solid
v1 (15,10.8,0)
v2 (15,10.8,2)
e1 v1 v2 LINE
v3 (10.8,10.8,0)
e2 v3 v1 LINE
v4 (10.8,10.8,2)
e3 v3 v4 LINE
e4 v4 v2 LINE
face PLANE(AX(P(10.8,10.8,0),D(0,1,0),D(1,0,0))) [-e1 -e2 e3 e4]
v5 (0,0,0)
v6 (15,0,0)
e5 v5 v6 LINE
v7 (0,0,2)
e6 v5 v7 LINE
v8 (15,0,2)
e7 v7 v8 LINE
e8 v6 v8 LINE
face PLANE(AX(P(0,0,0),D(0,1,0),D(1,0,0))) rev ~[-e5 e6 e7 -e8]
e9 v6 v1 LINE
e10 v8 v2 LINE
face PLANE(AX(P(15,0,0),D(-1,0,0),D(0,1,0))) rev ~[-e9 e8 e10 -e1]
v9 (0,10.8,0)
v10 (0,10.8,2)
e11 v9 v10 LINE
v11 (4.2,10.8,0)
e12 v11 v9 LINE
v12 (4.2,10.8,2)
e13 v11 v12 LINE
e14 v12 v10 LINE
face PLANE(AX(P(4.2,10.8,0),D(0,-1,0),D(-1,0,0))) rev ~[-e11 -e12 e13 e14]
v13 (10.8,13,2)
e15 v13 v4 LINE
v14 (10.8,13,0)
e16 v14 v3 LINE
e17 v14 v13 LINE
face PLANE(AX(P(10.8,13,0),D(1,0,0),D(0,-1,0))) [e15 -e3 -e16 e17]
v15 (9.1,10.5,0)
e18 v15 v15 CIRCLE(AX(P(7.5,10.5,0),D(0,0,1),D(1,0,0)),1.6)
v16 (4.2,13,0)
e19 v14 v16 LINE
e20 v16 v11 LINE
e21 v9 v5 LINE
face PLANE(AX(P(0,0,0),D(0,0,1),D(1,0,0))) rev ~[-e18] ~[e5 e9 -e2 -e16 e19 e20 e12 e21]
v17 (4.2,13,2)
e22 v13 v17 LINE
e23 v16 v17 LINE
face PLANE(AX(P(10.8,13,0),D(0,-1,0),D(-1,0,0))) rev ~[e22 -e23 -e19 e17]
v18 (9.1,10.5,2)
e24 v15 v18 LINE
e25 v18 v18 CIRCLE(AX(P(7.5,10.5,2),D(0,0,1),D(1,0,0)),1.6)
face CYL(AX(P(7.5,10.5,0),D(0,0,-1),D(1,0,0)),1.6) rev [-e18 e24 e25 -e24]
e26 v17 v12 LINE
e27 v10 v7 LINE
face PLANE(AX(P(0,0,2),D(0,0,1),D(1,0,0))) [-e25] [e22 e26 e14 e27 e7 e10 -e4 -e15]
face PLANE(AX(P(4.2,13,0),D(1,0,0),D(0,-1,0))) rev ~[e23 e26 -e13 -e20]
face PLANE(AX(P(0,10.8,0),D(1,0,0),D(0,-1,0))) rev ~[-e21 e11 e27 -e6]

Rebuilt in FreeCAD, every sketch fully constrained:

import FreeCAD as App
import Part
import Sketcher
from FreeCAD import Vector

doc = App.newDocument("Part")
body = doc.addObject("PartDesign::Body", "Body")

# Sketch on XY plane
sketch1 = body.newObject("Sketcher::SketchObject", "Sketch")
sketch1.AttachmentSupport = (doc.getObject("XY_Plane"), [""])
sketch1.MapMode = "FlatFace"
sketch1.addGeometry(Part.LineSegment(Vector(0, 10.8, 0), Vector(0, 0, 0)), False)
sketch1.addGeometry(Part.LineSegment(Vector(0, 0, 0), Vector(15, 0, 0)), False)
sketch1.addGeometry(Part.LineSegment(Vector(15, 0, 0), Vector(15, 10.8, 0)), False)
sketch1.addGeometry(Part.LineSegment(Vector(15, 10.8, 0), Vector(10.8, 10.8, 0)), False)
sketch1.addGeometry(Part.LineSegment(Vector(10.8, 10.8, 0), Vector(10.8, 13, 0)), False)
sketch1.addGeometry(Part.LineSegment(Vector(10.8, 13, 0), Vector(4.2, 13, 0)), False)
sketch1.addGeometry(Part.LineSegment(Vector(4.2, 13, 0), Vector(4.2, 10.8, 0)), False)
sketch1.addGeometry(Part.LineSegment(Vector(4.2, 10.8, 0), Vector(0, 10.8, 0)), False)
sketch1.addGeometry(Part.Circle(Vector(7.5, 10.5, 0), Vector(0, 0, 1), 1.6), False)
sketch1.addConstraint(Sketcher.Constraint("Coincident", 0, 2, 1, 1))
sketch1.addConstraint(Sketcher.Constraint("Coincident", 1, 2, 2, 1))
sketch1.addConstraint(Sketcher.Constraint("Coincident", 2, 2, 3, 1))
sketch1.addConstraint(Sketcher.Constraint("Coincident", 3, 2, 4, 1))
sketch1.addConstraint(Sketcher.Constraint("Coincident", 4, 2, 5, 1))
sketch1.addConstraint(Sketcher.Constraint("Coincident", 5, 2, 6, 1))
sketch1.addConstraint(Sketcher.Constraint("Coincident", 6, 2, 7, 1))
sketch1.addConstraint(Sketcher.Constraint("Coincident", 7, 2, 0, 1))
sketch1.addConstraint(Sketcher.Constraint("Vertical", 0))
sketch1.addConstraint(Sketcher.Constraint("Horizontal", 1))
sketch1.addConstraint(Sketcher.Constraint("Vertical", 2))
sketch1.addConstraint(Sketcher.Constraint("Horizontal", 3))
sketch1.addConstraint(Sketcher.Constraint("Vertical", 4))
sketch1.addConstraint(Sketcher.Constraint("Horizontal", 5))
sketch1.addConstraint(Sketcher.Constraint("Vertical", 6))
sketch1.addConstraint(Sketcher.Constraint("Horizontal", 7))
sketch1.addConstraint(Sketcher.Constraint("Coincident", 0, 2, -1, 1))
sketch1.addConstraint(Sketcher.Constraint("Horizontal", 3, 2, 6, 2))
sketch1.addConstraint(Sketcher.Constraint("Equal", 3, 7))
sketch1.addConstraint(Sketcher.Constraint("Diameter", 8, 3.2))
sketch1.addConstraint(Sketcher.Constraint("DistanceX", 1, 1, 1, 2, 15.0))
sketch1.addConstraint(Sketcher.Constraint("DistanceX", 3, 2, 3, 1, 4.2))
sketch1.addConstraint(Sketcher.Constraint("DistanceY", 4, 1, 4, 2, 2.2))
sketch1.addConstraint(Sketcher.Constraint("DistanceY", -1, 1, 4, 2, 13.0))
sketch1.addConstraint(Sketcher.Constraint("DistanceX", -1, 1, 8, 3, 7.5))
sketch1.addConstraint(Sketcher.Constraint("DistanceY", -1, 1, 8, 3, 10.5))
pad1 = body.newObject("PartDesign::Pad", "Pad")
pad1.Profile = sketch1
pad1.Length = 2

doc.recompute()
